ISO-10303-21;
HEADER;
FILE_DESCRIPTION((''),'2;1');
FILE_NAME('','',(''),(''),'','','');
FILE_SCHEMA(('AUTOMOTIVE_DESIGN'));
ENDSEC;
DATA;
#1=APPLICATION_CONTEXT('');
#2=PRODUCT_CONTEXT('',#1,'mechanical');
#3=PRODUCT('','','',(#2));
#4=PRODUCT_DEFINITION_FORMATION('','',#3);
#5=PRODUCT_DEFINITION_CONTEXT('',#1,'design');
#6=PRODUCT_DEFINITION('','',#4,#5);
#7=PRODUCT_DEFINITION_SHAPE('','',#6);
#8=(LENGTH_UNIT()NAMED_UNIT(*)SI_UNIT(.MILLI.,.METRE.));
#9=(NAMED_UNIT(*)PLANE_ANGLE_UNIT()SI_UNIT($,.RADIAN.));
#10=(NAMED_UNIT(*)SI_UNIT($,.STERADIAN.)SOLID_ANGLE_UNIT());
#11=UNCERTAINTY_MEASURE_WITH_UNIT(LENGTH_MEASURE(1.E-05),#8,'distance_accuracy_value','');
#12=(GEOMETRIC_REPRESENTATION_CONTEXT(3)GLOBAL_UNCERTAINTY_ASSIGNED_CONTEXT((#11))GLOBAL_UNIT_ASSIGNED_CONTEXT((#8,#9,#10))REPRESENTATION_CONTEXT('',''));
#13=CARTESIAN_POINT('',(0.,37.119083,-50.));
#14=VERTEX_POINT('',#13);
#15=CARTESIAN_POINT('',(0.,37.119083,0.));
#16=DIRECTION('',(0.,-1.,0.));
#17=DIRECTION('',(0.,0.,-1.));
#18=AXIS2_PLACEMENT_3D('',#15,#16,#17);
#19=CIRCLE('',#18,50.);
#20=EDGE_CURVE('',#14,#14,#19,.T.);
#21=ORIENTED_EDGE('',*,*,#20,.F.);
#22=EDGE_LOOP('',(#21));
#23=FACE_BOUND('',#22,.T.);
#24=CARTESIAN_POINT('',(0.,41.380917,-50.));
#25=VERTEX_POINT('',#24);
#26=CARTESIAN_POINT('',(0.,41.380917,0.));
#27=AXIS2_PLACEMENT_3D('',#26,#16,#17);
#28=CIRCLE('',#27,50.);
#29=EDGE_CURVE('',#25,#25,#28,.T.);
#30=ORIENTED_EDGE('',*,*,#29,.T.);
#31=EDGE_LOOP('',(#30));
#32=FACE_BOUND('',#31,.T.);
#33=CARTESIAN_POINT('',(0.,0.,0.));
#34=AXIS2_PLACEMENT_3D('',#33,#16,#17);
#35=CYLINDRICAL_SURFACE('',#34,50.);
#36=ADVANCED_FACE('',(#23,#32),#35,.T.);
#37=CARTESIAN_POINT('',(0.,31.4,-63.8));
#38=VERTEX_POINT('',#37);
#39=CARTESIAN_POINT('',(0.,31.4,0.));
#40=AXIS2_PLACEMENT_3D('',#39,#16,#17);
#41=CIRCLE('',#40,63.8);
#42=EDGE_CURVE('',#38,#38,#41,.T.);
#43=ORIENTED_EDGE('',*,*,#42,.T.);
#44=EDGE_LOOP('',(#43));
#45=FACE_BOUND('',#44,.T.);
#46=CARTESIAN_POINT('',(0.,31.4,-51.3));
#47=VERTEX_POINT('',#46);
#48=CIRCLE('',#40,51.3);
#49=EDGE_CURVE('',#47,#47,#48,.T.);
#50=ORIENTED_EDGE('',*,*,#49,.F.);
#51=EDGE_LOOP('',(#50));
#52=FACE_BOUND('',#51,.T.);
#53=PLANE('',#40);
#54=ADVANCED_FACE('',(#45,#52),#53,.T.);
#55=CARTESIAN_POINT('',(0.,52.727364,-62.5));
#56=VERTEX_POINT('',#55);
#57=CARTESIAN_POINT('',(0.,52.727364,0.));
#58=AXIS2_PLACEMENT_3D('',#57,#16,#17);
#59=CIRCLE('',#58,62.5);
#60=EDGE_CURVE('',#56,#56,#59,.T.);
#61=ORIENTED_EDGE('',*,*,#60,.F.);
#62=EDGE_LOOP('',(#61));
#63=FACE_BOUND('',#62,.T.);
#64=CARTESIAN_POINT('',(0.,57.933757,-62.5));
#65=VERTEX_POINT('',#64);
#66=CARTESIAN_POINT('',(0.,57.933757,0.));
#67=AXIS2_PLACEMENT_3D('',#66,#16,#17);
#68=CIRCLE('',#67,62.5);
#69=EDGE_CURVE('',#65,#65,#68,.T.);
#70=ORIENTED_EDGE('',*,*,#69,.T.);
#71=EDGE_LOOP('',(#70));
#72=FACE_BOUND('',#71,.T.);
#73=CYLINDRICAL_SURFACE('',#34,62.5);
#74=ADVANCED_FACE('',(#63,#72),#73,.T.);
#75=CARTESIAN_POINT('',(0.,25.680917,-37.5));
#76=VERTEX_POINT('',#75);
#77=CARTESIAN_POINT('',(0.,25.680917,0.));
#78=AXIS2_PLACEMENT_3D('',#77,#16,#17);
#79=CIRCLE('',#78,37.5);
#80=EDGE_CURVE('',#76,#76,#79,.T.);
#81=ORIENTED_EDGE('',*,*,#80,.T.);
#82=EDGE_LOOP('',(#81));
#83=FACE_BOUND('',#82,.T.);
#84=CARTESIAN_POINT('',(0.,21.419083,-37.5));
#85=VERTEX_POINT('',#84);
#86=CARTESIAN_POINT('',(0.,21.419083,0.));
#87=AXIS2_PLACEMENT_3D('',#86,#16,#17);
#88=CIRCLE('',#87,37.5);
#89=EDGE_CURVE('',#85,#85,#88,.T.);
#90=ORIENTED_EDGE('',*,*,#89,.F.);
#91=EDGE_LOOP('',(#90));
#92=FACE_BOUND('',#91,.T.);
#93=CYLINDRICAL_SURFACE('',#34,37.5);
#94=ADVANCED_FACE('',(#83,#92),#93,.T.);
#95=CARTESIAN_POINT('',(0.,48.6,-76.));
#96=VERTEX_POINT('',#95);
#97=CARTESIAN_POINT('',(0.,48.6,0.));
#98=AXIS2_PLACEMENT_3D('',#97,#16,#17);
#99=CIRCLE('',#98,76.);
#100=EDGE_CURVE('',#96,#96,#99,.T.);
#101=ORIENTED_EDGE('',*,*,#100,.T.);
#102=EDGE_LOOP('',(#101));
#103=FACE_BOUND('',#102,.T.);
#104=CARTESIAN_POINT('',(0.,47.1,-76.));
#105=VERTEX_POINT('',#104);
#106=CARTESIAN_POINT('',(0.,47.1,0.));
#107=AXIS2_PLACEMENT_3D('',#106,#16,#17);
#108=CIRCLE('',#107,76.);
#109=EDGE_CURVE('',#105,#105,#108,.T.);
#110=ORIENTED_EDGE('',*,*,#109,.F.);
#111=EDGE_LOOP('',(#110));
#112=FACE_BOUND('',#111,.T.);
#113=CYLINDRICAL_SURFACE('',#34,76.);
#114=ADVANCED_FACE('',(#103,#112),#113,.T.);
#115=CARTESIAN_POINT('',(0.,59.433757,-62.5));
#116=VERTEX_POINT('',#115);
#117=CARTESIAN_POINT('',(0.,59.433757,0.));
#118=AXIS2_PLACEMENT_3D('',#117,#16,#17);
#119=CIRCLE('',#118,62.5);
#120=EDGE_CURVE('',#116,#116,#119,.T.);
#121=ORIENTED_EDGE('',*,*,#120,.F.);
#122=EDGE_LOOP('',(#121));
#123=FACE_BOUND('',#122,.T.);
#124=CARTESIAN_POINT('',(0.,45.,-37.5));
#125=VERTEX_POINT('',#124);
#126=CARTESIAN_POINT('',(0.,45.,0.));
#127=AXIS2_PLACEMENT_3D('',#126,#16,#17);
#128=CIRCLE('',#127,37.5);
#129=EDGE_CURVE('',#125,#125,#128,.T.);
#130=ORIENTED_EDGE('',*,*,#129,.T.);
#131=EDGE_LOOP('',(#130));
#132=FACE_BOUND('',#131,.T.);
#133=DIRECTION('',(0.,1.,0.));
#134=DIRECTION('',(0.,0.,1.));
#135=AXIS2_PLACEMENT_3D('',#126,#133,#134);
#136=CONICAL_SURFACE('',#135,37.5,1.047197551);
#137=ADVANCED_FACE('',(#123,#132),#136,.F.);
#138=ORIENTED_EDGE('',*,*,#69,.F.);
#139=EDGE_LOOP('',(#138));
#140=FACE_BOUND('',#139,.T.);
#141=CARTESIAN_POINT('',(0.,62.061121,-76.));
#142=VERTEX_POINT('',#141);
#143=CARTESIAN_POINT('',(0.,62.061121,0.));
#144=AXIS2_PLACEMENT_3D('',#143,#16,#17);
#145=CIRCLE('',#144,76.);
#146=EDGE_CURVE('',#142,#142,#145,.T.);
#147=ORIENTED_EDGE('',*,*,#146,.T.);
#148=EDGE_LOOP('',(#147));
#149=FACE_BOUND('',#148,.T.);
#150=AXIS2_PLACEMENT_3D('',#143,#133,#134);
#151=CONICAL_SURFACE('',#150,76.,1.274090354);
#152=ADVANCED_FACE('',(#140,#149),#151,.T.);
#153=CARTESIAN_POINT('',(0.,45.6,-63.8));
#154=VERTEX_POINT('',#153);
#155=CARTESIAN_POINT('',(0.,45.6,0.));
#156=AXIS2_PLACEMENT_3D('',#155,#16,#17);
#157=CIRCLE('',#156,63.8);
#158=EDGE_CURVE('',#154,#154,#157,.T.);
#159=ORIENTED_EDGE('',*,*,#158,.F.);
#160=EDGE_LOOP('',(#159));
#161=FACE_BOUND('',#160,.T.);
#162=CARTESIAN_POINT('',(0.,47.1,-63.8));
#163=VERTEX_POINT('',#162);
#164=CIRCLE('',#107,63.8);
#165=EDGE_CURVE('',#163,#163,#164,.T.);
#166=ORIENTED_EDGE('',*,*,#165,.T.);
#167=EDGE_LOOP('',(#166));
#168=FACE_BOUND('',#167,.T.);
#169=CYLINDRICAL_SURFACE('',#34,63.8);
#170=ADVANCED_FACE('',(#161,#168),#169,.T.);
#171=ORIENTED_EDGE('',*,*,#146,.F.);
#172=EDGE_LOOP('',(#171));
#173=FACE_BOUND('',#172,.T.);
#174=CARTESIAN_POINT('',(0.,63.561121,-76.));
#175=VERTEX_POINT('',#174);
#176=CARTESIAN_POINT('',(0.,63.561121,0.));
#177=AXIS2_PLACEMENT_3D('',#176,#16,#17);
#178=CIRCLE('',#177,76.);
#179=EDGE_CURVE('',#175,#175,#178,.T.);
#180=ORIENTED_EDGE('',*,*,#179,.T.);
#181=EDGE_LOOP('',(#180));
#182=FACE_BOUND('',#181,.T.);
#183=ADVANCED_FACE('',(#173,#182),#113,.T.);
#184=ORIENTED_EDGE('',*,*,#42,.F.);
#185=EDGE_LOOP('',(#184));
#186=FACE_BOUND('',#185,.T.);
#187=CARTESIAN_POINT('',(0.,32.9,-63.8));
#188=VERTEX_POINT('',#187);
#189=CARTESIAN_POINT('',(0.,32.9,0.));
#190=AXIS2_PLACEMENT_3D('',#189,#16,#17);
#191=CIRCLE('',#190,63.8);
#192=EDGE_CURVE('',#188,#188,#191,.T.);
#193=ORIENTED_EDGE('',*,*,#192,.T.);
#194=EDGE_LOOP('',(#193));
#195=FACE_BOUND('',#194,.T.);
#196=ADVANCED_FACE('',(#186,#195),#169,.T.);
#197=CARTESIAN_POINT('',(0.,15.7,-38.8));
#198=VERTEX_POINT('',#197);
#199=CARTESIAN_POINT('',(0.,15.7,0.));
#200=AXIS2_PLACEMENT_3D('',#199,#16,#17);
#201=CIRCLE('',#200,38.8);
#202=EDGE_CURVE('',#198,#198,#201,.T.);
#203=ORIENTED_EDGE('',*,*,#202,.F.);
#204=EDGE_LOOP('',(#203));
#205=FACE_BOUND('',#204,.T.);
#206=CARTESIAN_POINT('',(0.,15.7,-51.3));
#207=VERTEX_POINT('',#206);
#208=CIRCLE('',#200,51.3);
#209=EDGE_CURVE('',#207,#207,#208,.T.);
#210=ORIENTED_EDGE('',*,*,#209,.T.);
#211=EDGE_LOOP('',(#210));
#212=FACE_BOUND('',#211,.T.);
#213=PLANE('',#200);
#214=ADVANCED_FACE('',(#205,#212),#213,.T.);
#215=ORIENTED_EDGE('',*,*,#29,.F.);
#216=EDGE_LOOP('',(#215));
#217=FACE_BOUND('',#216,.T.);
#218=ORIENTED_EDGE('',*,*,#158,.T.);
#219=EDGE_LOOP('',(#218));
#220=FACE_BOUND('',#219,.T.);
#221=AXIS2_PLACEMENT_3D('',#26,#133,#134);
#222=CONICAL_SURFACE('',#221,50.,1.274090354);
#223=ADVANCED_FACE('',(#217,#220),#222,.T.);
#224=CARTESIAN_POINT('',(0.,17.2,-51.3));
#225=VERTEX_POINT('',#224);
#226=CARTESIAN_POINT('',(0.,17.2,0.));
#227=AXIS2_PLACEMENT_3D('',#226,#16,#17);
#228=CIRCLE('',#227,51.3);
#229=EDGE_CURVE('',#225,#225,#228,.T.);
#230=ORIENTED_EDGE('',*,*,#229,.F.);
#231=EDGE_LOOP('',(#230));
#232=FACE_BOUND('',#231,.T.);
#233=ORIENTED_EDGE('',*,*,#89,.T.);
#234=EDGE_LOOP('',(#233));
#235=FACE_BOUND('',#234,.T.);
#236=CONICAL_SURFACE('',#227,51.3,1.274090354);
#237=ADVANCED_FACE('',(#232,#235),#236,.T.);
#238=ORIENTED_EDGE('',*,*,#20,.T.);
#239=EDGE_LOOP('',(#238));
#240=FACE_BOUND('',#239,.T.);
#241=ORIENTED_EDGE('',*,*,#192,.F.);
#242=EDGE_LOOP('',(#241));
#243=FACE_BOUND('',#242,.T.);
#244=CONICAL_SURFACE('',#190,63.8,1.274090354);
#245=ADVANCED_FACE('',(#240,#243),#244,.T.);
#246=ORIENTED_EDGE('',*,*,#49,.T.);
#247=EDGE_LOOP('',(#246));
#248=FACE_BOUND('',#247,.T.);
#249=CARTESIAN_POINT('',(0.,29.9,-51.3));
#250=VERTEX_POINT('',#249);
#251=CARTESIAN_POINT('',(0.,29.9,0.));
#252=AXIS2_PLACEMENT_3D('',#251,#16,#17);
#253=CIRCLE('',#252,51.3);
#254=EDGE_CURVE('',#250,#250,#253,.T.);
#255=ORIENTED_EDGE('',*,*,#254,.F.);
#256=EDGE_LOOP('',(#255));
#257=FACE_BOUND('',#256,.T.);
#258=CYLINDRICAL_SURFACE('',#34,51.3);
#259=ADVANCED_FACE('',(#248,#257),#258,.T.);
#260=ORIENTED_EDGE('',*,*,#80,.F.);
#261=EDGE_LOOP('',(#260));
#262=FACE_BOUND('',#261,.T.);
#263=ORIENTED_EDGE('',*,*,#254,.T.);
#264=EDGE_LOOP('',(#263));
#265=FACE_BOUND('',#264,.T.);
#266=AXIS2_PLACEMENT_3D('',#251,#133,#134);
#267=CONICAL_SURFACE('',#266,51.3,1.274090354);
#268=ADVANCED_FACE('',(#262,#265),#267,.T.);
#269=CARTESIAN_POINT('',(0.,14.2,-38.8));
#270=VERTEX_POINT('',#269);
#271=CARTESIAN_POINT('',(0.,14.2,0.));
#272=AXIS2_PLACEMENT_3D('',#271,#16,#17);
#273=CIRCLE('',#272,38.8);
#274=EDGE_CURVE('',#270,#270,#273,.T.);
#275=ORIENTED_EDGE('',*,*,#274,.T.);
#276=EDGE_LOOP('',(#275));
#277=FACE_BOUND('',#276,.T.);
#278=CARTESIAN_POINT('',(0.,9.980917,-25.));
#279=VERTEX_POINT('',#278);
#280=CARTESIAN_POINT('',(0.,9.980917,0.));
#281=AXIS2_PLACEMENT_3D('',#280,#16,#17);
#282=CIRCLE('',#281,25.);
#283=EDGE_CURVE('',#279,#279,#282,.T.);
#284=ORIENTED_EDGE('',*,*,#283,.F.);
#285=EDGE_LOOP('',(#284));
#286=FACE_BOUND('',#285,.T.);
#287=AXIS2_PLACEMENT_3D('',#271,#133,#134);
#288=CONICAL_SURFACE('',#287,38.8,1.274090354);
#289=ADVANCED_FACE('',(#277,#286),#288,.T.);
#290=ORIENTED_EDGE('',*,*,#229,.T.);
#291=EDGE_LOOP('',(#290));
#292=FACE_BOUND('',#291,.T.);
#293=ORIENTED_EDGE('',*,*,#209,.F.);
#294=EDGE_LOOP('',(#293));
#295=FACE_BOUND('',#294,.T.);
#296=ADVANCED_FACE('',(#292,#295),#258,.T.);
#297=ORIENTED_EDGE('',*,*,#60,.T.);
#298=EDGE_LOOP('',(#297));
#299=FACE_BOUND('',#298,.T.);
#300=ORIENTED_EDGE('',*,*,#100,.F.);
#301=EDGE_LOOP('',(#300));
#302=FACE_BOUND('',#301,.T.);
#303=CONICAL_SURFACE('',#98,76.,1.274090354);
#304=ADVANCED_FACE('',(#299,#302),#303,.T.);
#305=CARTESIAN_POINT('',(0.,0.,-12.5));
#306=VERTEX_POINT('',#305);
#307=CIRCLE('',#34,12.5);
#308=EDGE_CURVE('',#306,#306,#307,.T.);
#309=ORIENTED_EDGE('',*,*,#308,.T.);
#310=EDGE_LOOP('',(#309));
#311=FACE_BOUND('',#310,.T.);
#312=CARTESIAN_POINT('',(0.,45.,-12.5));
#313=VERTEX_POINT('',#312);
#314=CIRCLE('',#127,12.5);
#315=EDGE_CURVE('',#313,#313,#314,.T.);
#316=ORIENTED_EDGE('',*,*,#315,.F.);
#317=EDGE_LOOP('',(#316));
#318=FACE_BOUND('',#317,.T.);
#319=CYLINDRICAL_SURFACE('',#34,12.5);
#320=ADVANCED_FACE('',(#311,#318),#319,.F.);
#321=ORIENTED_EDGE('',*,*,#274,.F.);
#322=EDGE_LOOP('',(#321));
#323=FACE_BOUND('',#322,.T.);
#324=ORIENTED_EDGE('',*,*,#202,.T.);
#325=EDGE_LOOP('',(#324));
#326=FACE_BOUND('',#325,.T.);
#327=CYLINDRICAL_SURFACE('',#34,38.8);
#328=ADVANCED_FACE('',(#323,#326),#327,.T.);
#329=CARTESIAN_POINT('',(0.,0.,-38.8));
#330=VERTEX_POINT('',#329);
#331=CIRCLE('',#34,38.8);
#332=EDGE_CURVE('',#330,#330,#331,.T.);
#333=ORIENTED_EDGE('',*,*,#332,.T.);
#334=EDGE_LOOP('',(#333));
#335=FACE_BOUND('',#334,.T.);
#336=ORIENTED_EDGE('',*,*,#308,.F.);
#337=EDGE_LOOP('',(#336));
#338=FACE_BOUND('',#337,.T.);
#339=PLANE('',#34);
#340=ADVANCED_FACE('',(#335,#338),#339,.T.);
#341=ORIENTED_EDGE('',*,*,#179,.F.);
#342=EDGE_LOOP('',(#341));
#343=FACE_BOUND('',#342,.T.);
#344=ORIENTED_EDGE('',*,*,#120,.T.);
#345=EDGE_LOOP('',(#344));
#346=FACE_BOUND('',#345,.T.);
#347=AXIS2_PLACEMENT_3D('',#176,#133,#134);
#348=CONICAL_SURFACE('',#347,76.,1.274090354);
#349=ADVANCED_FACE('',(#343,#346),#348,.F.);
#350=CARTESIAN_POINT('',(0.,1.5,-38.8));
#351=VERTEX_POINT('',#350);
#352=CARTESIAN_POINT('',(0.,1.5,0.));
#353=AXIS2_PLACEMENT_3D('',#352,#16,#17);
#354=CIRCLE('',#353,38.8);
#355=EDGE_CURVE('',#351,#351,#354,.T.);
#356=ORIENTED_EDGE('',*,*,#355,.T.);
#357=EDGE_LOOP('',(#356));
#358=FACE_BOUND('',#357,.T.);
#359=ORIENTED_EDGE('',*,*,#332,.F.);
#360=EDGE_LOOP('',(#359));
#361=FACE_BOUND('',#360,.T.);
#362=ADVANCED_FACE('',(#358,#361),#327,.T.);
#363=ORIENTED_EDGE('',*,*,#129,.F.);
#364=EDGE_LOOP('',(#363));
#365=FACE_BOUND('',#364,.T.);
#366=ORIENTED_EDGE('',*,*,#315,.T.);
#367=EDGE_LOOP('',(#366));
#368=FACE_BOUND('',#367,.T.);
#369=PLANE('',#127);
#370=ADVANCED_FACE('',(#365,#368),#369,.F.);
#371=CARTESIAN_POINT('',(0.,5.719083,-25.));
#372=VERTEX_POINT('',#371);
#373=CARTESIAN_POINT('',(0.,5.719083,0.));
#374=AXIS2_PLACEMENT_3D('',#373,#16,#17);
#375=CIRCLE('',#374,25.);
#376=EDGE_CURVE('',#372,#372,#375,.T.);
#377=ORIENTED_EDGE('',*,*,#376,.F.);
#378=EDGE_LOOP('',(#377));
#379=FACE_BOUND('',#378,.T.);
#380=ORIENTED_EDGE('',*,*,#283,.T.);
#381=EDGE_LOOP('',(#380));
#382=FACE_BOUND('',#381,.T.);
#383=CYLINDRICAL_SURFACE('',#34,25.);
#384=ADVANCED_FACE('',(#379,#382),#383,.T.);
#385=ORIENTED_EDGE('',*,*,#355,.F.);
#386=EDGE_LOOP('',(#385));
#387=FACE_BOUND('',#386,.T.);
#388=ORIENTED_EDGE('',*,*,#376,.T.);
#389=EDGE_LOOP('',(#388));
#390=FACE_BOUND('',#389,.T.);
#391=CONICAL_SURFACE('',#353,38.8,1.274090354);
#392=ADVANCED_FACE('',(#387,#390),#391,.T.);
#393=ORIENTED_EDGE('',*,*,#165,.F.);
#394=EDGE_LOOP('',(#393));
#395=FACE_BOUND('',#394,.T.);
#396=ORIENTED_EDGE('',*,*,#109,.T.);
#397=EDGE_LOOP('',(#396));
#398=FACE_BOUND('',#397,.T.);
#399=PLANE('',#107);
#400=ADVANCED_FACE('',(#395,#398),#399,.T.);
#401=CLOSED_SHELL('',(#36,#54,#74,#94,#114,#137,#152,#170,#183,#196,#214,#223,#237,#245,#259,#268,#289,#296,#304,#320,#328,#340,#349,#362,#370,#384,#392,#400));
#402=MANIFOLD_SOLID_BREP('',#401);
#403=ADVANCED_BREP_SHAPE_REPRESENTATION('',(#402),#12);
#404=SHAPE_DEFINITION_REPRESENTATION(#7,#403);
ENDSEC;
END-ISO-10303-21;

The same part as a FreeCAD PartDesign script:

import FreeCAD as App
import Part
import Sketcher

V = App.Vector
Q = App.Units.Quantity


def add_polygon(sketch, points):
    """Adds a closed chain of lines whose ends are joined by coincident constraints."""
    first, n = sketch.GeometryCount, len(points)
    for a, b in zip(points, points[1:] + points[:1]):
        sketch.addGeometry(Part.LineSegment(App.Vector(*a, 0), App.Vector(*b, 0)), False)
    for i in range(n):
        sketch.addConstraint(Sketcher.Constraint("Coincident", first + i, 2, first + (i + 1) % n, 1))

doc = App.newDocument("Part")
params = doc.addObject("Spreadsheet::Sheet", "Params")
for row, (alias, value) in enumerate([
    ("sketch1_width", "25 mm"),
    ("sketch1_height", "45 mm"),
    ("sketch1_width2", "26.3 mm"),
    ("sketch1_width3", "12.5 mm"),
    ("sketch1_width4", "12.2 mm"),
    ("revolution_angle", "360 deg"),
], start=1):
    params.set(f"A{row}", alias)
    params.set(f"B{row}", "=" + value)
    params.setAlias(f"B{row}", alias)

body = doc.addObject("PartDesign::Body", "Body")

# Sketch on XY plane
sketch1 = doc.addObject("Sketcher::SketchObject", "Sketch")
body.addObject(sketch1)
sketch1.AttachmentSupport = (doc.XY_Plane, [""])
sketch1.MapMode = "FlatFace"
add_polygon(sketch1, [(62.5, 59.433757), (37.5, 45), (12.5, 45), (12.5, 0), (38.8, 0), (38.8, 1.5), (25, 5.719083), (25, 9.980917), (38.8, 14.2), (38.8, 15.7), (51.3, 15.7), (51.3, 17.2), (37.5, 21.419083), (37.5, 25.680917), (51.3, 29.9), (51.3, 31.4), (63.8, 31.4), (63.8, 32.9), (50, 37.119083), (50, 41.380917), (63.8, 45.6), (63.8, 47.1), (76, 47.1), (76, 48.6), (62.5, 52.727364), (62.5, 57.933757), (76, 62.061121), (76, 63.561121)])  # lines 0-27
sketch1.addConstraint([
    Sketcher.Constraint("Horizontal", 1),
    Sketcher.Constraint("Vertical", 2),
    Sketcher.Constraint("Horizontal", 3),
    Sketcher.Constraint("Vertical", 4),
    Sketcher.Constraint("Vertical", 6),
    Sketcher.Constraint("Vertical", 8),
    Sketcher.Constraint("Horizontal", 9),
    Sketcher.Constraint("Vertical", 10),
    Sketcher.Constraint("Vertical", 12),
    Sketcher.Constraint("Vertical", 14),
    Sketcher.Constraint("Horizontal", 15),
    Sketcher.Constraint("Vertical", 16),
    Sketcher.Constraint("Vertical", 18),
    Sketcher.Constraint("Vertical", 20),
    Sketcher.Constraint("Horizontal", 21),
    Sketcher.Constraint("Vertical", 22),
    Sketcher.Constraint("Vertical", 24),
    Sketcher.Constraint("Vertical", 26),
    Sketcher.Constraint("PointOnObject", 2, 2, -1),
    Sketcher.Constraint("Parallel", 5, 11),
    Sketcher.Constraint("Parallel", 7, 13),
    Sketcher.Constraint("Parallel", 11, 17),
    Sketcher.Constraint("Parallel", 13, 19),
    Sketcher.Constraint("Parallel", 17, 23),
    Sketcher.Constraint("Parallel", 19, 25),
    Sketcher.Constraint("Parallel", 25, 27),
    Sketcher.Constraint("Vertical", 4, 2, 7, 2),
    Sketcher.Constraint("Vertical", 0, 2, 11, 2),
    Sketcher.Constraint("Vertical", 10, 2, 13, 2),
    Sketcher.Constraint("Vertical", 16, 2, 19, 2),
    Sketcher.Constraint("Vertical", 22, 2, 25, 2),
    Sketcher.Constraint("Vertical", 24, 2, 27, 2),
    Sketcher.Constraint("Equal", 9, 15),
    Sketcher.Constraint("Equal", 4, 8),
    Sketcher.Constraint("Equal", 8, 10),
    Sketcher.Constraint("Equal", 6, 12),
    Sketcher.Constraint("Equal", 10, 14),
    Sketcher.Constraint("Equal", 14, 16),
    Sketcher.Constraint("Equal", 12, 18),
    Sketcher.Constraint("Equal", 16, 20),
    Sketcher.Constraint("Equal", 20, 22),
    Sketcher.Constraint("Equal", 22, 26),
    Sketcher.Constraint("Equal", 5, 7),
    Sketcher.Constraint("Equal", 7, 11),
    Sketcher.Constraint("Equal", 13, 17),
    Sketcher.Constraint("DistanceX", 1, 2, 1, 1, 25.0),
    Sketcher.Constraint("DistanceY", 2, 2, 2, 1, 45.0),
    Sketcher.Constraint("Angle", 0, Q("-150 deg")),
    Sketcher.Constraint("Angle", 5, Q("163 deg")),
    Sketcher.Constraint("DistanceX", 3, 1, 3, 2, 26.3),
    Sketcher.Constraint("DistanceX", 9, 1, 9, 2, 12.5),
    Sketcher.Constraint("DistanceX", 21, 1, 21, 2, 12.2),
    Sketcher.Constraint("DistanceY", 4, 1, 4, 2, 1.5),
    Sketcher.Constraint("DistanceX", -1, 1, 5, 2, 25.0),
    Sketcher.Constraint("DistanceY", -1, 1, 7, 2, 14.2),
    Sketcher.Constraint("DistanceX", -1, 1, 23, 2, 62.5),
])
sketch1.setExpression("Constraints[73]", "Params.sketch1_width")
sketch1.setExpression("Constraints[74]", "Params.sketch1_height")
sketch1.setExpression("Constraints[77]", "Params.sketch1_width2")
sketch1.setExpression("Constraints[78]", "Params.sketch1_width3")
sketch1.setExpression("Constraints[79]", "Params.sketch1_width4")
revolution = doc.addObject("PartDesign::Revolution", "Revolution")
body.addObject(revolution)
revolution.Profile = sketch1
revolution.ReferenceAxis = (sketch1, ["V_Axis"])
revolution.setExpression("Angle", "Params.revolution_angle")

doc.recompute()
